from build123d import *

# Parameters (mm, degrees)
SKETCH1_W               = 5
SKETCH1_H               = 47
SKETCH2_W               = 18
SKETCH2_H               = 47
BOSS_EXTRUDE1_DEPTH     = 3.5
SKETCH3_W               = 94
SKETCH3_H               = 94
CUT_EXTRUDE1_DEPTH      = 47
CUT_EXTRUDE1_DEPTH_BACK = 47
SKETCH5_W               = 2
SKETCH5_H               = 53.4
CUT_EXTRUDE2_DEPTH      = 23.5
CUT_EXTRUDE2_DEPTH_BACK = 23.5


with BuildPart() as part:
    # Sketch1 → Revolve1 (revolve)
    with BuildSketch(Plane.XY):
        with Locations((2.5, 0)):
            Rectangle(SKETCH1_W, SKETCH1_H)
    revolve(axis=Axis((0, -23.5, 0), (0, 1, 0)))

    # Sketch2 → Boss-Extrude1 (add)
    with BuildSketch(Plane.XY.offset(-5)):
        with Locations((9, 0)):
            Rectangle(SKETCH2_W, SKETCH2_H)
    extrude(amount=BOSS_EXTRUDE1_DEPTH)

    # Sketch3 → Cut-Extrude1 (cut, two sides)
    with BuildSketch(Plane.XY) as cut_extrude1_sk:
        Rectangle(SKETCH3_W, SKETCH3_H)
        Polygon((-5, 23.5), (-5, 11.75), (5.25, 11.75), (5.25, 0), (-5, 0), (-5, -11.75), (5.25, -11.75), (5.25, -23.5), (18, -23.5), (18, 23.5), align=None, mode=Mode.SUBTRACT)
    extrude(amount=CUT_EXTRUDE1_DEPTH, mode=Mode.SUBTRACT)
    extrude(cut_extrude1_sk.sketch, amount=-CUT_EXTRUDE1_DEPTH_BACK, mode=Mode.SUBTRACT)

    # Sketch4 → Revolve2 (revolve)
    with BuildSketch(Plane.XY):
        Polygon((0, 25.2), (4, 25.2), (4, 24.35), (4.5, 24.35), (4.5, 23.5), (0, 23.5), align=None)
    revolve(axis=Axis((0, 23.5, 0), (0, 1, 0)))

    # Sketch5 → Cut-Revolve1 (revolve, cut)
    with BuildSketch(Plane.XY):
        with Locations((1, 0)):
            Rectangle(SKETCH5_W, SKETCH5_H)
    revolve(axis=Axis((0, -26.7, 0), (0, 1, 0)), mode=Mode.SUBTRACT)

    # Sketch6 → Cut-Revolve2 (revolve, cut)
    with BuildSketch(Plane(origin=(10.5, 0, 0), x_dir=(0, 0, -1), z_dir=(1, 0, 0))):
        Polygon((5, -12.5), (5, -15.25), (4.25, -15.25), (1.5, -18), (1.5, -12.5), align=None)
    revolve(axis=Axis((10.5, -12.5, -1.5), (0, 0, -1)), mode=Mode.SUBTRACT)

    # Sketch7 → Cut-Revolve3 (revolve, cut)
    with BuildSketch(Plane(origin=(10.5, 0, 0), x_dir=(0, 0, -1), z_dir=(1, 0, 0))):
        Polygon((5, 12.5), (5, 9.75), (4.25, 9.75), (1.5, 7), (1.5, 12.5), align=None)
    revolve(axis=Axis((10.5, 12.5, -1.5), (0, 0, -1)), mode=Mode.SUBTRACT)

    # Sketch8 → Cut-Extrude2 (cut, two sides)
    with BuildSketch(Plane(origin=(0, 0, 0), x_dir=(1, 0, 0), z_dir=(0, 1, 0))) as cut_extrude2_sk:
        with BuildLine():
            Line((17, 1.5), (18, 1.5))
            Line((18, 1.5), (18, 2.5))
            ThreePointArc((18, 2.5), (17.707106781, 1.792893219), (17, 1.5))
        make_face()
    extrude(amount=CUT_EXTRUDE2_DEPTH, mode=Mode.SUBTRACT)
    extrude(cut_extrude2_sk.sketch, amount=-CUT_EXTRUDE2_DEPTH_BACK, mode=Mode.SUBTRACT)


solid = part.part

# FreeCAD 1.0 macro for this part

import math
import FreeCAD as App
import Part
import Sketcher

V = App.Vector
Q = App.Units.Quantity


def add_polygon(sketch, points):
    """Adds a closed chain of lines whose ends are joined by coincident constraints."""
    first, n = sketch.GeometryCount, len(points)
    for a, b in zip(points, points[1:] + points[:1]):
        sketch.addGeometry(Part.LineSegment(App.Vector(*a, 0), App.Vector(*b, 0)), False)
    for i in range(n):
        sketch.addConstraint(Sketcher.Constraint("Coincident", first + i, 2, first + (i + 1) % n, 1))

doc = App.newDocument("Part")
body = doc.addObject("PartDesign::Body", "Body")

sketch1 = body.newObject("Sketcher::SketchObject", "Sketch")
sketch1.AttachmentSupport = (doc.getObject("XY_Plane"), [""])
sketch1.MapMode = "FlatFace"
add_polygon(sketch1, [(0, 23.5), (0, -23.5), (5, -23.5), (5, 23.5)])
sketch1.addConstraint([
    Sketcher.Constraint("Vertical", 0),
    Sketcher.Constraint("Horizontal", 1),
    Sketcher.Constraint("Vertical", 2),
    Sketcher.Constraint("Horizontal", 3),
    Sketcher.Constraint("Symmetric", 0, 2, 3, 2, -1, 1),
    Sketcher.Constraint("DistanceX", 1, 1, 1, 2, 5.0),
    Sketcher.Constraint("DistanceY", 0, 2, 0, 1, 47.0),
])
revolution = body.newObject("PartDesign::Revolution", "Revolution")
revolution.Profile = sketch1
revolution.ReferenceAxis = (sketch1, ["V_Axis"])
revolution.Angle = 360

sketch2 = body.newObject("Sketcher::SketchObject", "Sketch001")
sketch2.AttachmentSupport = (doc.getObject("XY_Plane"), [""])
sketch2.MapMode = "FlatFace"
sketch2.AttachmentOffset = App.Placement(V(0, 0, -5), App.Rotation())
add_polygon(sketch2, [(0, 23.5), (0, -23.5), (18, -23.5), (18, 23.5)])
sketch2.addConstraint([
    Sketcher.Constraint("Vertical", 0),
    Sketcher.Constraint("Horizontal", 1),
    Sketcher.Constraint("Vertical", 2),
    Sketcher.Constraint("Horizontal", 3),
    Sketcher.Constraint("Symmetric", 0, 2, 3, 2, -1, 1),
    Sketcher.Constraint("DistanceX", 1, 1, 1, 2, 18.0),
    Sketcher.Constraint("DistanceY", 0, 2, 0, 1, 47.0),
])
pad1 = body.newObject("PartDesign::Pad", "Pad")
pad1.Profile = sketch2
pad1.Length = 3.5

sketch3 = body.newObject("Sketcher::SketchObject", "Sketch002")
sketch3.AttachmentSupport = (doc.getObject("XY_Plane"), [""])
sketch3.MapMode = "FlatFace"
add_polygon(sketch3, [(-47, 47), (-47, -47), (47, -47), (47, 47)])
add_polygon(sketch3, [(-5, 11.75), (-5, 23.5), (18, 23.5), (18, -23.5), (5.25, -23.5), (5.25, -11.75), (-5, -11.75), (-5, 0), (5.25, 0), (5.25, 11.75)])
sketch3.addConstraint([
    Sketcher.Constraint("Vertical", 0),
    Sketcher.Constraint("Horizontal", 1),
    Sketcher.Constraint("Vertical", 2),
    Sketcher.Constraint("Horizontal", 3),
    Sketcher.Constraint("Vertical", 4),
    Sketcher.Constraint("Horizontal", 5),
    Sketcher.Constraint("Vertical", 6),
    Sketcher.Constraint("Horizontal", 7),
    Sketcher.Constraint("Vertical", 8),
    Sketcher.Constraint("Horizontal", 9),
    Sketcher.Constraint("Vertical", 10),
    Sketcher.Constraint("Horizontal", 11),
    Sketcher.Constraint("Vertical", 12),
    Sketcher.Constraint("Horizontal", 13),
    Sketcher.Constraint("Symmetric", 0, 2, 2, 2, -1, 1),
    Sketcher.Constraint("Symmetric", 8, 2, 12, 2, -1),
    Sketcher.Constraint("PointOnObject", 10, 2, -1),
    Sketcher.Constraint("Vertical", 4, 2, 9, 2),
    Sketcher.Constraint("Equal", 3, 0),
    Sketcher.Constraint("Equal", 4, 8),
    Sketcher.Constraint("Equal", 8, 10),
    Sketcher.Constraint("DistanceX", 1, 1, 1, 2, 94.0),
    Sketcher.Constraint("DistanceX", 5, 1, 5, 2, 23.0),
    Sketcher.Constraint("DistanceY", 6, 2, 6, 1, 47.0),
    Sketcher.Constraint("DistanceX", 4, 2, -1, 1, 5.0),
    Sketcher.Constraint("DistanceX", 7, 2, 7, 1, 12.75),
])
pocket1 = body.newObject("PartDesign::Pocket", "Pocket")
pocket1.Profile = sketch3
pocket1.Type = "ThroughAll"
pocket1.Midplane = True

sketch4 = body.newObject("Sketcher::SketchObject", "Sketch003")
sketch4.AttachmentSupport = (doc.getObject("XY_Plane"), [""])
sketch4.MapMode = "FlatFace"
add_polygon(sketch4, [(4, 25.2), (0, 25.2), (0, 23.5), (4.5, 23.5), (4.5, 24.35), (4, 24.35)])
sketch4.addConstraint([
    Sketcher.Constraint("Horizontal", 0),
    Sketcher.Constraint("Vertical", 1),
    Sketcher.Constraint("Horizontal", 2),
    Sketcher.Constraint("Vertical", 3),
    Sketcher.Constraint("Horizontal", 4),
    Sketcher.Constraint("Vertical", 5),
    Sketcher.Constraint("PointOnObject", 0, 2, -2),
    Sketcher.Constraint("Equal", 3, 5),
    Sketcher.Constraint("DistanceX", 0, 2, 0, 1, 4.0),
    Sketcher.Constraint("DistanceX", 2, 1, 2, 2, 4.5),
    Sketcher.Constraint("DistanceY", 1, 2, 1, 1, 1.7),
    Sketcher.Constraint("DistanceY", -1, 1, 0, 2, 25.2),
])
revolution2 = body.newObject("PartDesign::Revolution", "Revolution001")
revolution2.Profile = sketch4
revolution2.ReferenceAxis = (sketch4, ["V_Axis"])
revolution2.Angle = 360

sketch5 = body.newObject("Sketcher::SketchObject", "Sketch004")
sketch5.AttachmentSupport = (doc.getObject("XY_Plane"), [""])
sketch5.MapMode = "FlatFace"
add_polygon(sketch5, [(0, 26.7), (0, -26.7), (2, -26.7), (2, 26.7)])
sketch5.addConstraint([
    Sketcher.Constraint("Vertical", 0),
    Sketcher.Constraint("Horizontal", 1),
    Sketcher.Constraint("Vertical", 2),
    Sketcher.Constraint("Horizontal", 3),
    Sketcher.Constraint("Symmetric", 0, 2, 3, 2, -1, 1),
    Sketcher.Constraint("DistanceX", 1, 1, 1, 2, 2.0),
    Sketcher.Constraint("DistanceY", 0, 2, 0, 1, 53.4),
])
groove = body.newObject("PartDesign::Groove", "Groove")
groove.Profile = sketch5
groove.ReferenceAxis = (sketch5, ["V_Axis"])
groove.Angle = 360

sketch6 = body.newObject("Sketcher::SketchObject", "Sketch005")
sketch6.AttachmentSupport = (doc.getObject("YZ_Plane"), [""])
sketch6.MapMode = "FlatFace"
sketch6.AttachmentOffset = App.Placement(V(0, 0, 10.5), App.Rotation())
add_polygon(sketch6, [(-15.25, -5), (-12.5, -5), (-12.5, -1.5), (-18, -1.5), (-15.25, -4.25)])
sketch6.addGeometry(Part.LineSegment(V(-12.5, -1.5, 0), V(-12.5, -5, 0)), True)
sketch6.addConstraint([
    Sketcher.Constraint("Horizontal", 0),
    Sketcher.Constraint("Vertical", 1),
    Sketcher.Constraint("Horizontal", 2),
    Sketcher.Constraint("Vertical", 4),
    Sketcher.Constraint("Vertical", 5),
    Sketcher.Constraint("Coincident", 5, 1, 1, 2),
    Sketcher.Constraint("Horizontal", 4, 2, 5, 2),
    Sketcher.Constraint("Angle", 3, Q("-45 deg")),
    Sketcher.Constraint("DistanceX", 2, 2, 2, 1, 5.5),
    Sketcher.Constraint("DistanceY", 1, 1, 1, 2, 3.5),
    Sketcher.Constraint("DistanceY", 0, 2, -1, 1, 5.0),
    Sketcher.Constraint("DistanceX", 2, 2, -1, 1, 18.0),
    Sketcher.Constraint("DistanceX", 0, 1, 0, 2, 2.75),
])
groove2 = body.newObject("PartDesign::Groove", "Groove001")
groove2.Profile = sketch6
groove2.ReferenceAxis = (sketch6, ["Axis0"])
groove2.Angle = 360

sketch7 = body.newObject("Sketcher::SketchObject", "Sketch006")
sketch7.AttachmentSupport = (doc.getObject("YZ_Plane"), [""])
sketch7.MapMode = "FlatFace"
sketch7.AttachmentOffset = App.Placement(V(0, 0, 10.5), App.Rotation())
add_polygon(sketch7, [(9.75, -5), (12.5, -5), (12.5, -1.5), (7, -1.5), (9.75, -4.25)])
sketch7.addGeometry(Part.LineSegment(V(12.5, -1.5, 0), V(12.5, -5, 0)), True)
sketch7.addConstraint([
    Sketcher.Constraint("Horizontal", 0),
    Sketcher.Constraint("Vertical", 1),
    Sketcher.Constraint("Horizontal", 2),
    Sketcher.Constraint("Vertical", 4),
    Sketcher.Constraint("Vertical", 5),
    Sketcher.Constraint("Coincident", 5, 1, 1, 2),
    Sketcher.Constraint("Horizontal", 4, 2, 5, 2),
    Sketcher.Constraint("Angle", 3, Q("-45 deg")),
    Sketcher.Constraint("DistanceX", 2, 2, 2, 1, 5.5),
    Sketcher.Constraint("DistanceY", 1, 1, 1, 2, 3.5),
    Sketcher.Constraint("DistanceY", 0, 2, -1, 1, 5.0),
    Sketcher.Constraint("DistanceX", -1, 1, 2, 2, 7.0),
    Sketcher.Constraint("DistanceX", 0, 1, 0, 2, 2.75),
])
groove3 = body.newObject("PartDesign::Groove", "Groove002")
groove3.Profile = sketch7
groove3.ReferenceAxis = (sketch7, ["Axis0"])
groove3.Angle = 360

sketch8 = body.newObject("Sketcher::SketchObject", "Sketch007")
sketch8.AttachmentSupport = (doc.getObject("XZ_Plane"), [""])
sketch8.MapMode = "FlatFace"
sketch8.addGeometry([
    Part.LineSegment(V(17, -1.5, 0), V(18, -1.5, 0)),
    Part.LineSegment(V(18, -1.5, 0), V(18, -2.5, 0)),
    Part.ArcOfCircle(Part.Circle(V(17, -2.5, 0), V(0, 0, 1), 1), math.radians(0), math.radians(90)),
], False)
sketch8.addConstraint([
    Sketcher.Constraint("Coincident", 0, 2, 1, 1),
    Sketcher.Constraint("Tangent", 1, 2, 2, 1),
    Sketcher.Constraint("Tangent", 2, 2, 0, 1),
    Sketcher.Constraint("Horizontal", 0),
    Sketcher.Constraint("Vertical", 1),
    Sketcher.Constraint("Radius", 2, 1.0),
    Sketcher.Constraint("DistanceX", -1, 1, 2, 3, 17.0),
    Sketcher.Constraint("DistanceY", 2, 3, -1, 1, 2.5),
])
pocket2 = body.newObject("PartDesign::Pocket", "Pocket001")
pocket2.Profile = sketch8
pocket2.Type = "ThroughAll"
pocket2.Midplane = True

doc.recompute()
